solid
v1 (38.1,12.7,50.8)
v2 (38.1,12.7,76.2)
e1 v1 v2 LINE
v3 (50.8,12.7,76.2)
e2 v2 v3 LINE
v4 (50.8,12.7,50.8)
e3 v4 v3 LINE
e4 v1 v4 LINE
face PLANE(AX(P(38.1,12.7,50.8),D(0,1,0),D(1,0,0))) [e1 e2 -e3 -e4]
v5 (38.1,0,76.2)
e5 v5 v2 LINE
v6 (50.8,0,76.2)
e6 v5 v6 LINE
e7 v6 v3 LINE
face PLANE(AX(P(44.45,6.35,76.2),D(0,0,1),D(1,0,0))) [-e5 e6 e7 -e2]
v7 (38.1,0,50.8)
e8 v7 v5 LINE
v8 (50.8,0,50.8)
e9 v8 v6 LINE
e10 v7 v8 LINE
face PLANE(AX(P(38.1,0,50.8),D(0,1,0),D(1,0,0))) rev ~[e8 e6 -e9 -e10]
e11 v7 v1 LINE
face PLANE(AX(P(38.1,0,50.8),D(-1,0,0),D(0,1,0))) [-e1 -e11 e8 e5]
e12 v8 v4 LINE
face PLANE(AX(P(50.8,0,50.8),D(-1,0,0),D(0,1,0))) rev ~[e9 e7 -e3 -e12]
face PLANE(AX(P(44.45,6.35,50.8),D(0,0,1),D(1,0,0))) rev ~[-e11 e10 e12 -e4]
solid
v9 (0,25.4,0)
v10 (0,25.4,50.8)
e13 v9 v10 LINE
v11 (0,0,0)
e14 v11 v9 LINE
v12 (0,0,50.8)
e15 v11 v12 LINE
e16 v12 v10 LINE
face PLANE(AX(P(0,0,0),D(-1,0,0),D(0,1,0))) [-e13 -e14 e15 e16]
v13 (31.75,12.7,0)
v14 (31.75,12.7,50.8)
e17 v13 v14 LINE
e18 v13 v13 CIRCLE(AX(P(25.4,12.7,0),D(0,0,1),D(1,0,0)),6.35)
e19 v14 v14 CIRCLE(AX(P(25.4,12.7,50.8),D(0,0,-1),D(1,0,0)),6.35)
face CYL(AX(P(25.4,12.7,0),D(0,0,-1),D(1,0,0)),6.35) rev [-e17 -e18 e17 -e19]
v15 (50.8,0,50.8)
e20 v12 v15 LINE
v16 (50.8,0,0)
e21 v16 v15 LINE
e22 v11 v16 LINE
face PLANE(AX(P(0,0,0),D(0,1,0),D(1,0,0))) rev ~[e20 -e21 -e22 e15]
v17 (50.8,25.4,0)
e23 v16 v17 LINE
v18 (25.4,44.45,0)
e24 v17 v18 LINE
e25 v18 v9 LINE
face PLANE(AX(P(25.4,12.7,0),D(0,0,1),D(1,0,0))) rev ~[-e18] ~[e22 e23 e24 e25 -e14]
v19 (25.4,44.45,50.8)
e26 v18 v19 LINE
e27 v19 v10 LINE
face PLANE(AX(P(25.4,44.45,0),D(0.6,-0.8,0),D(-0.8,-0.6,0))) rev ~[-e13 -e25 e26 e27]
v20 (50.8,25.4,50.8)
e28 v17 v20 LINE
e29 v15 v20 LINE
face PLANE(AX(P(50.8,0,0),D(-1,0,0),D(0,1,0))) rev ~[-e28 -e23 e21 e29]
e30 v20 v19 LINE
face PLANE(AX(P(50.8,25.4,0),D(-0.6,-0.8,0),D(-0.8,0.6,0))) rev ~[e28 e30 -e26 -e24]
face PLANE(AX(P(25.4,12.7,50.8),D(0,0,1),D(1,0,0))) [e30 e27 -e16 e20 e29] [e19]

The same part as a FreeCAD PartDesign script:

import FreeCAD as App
import Part
import Sketcher
from FreeCAD import Vector
Q = App.Units.Quantity

doc = App.newDocument("Part")
body = doc.addObject("PartDesign::Body", "Body")

# Sketch on XY plane
sketch1 = body.newObject("Sketcher::SketchObject", "Sketch")
sketch1.AttachmentSupport = (doc.getObject("XY_Plane"), [""])
sketch1.MapMode = "FlatFace"
sketch1.addGeometry([
    Part.LineSegment(Vector(0, 25, 0), Vector(0, 0, 0)),  # 0
    Part.LineSegment(Vector(0, 0, 0), Vector(51, 0, 0)),  # 1
    Part.LineSegment(Vector(51, 0, 0), Vector(51, 25, 0)),  # 2
    Part.LineSegment(Vector(51, 25, 0), Vector(25, 44, 0)),  # 3
    Part.LineSegment(Vector(25, 44, 0), Vector(0, 25, 0)),  # 4
], False)
sketch1.addConstraint([
    Sketcher.Constraint("Coincident", 0, 2, 1, 1),
    Sketcher.Constraint("Coincident", 1, 2, 2, 1),
    Sketcher.Constraint("Coincident", 2, 2, 3, 1),
    Sketcher.Constraint("Coincident", 3, 2, 4, 1),
    Sketcher.Constraint("Coincident", 4, 2, 0, 1),
    Sketcher.Constraint("Vertical", 0),
    Sketcher.Constraint("Horizontal", 1),
    Sketcher.Constraint("Vertical", 2),
    Sketcher.Constraint("Coincident", 0, 2, -1, 1),
    Sketcher.Constraint("Horizontal", 2, 2, 4, 2),
    Sketcher.Constraint("Equal", 3, 4),
    Sketcher.Constraint("DistanceX", 1, 1, 1, 2, Q("2 in")),
    Sketcher.Constraint("DistanceY", 0, 2, 0, 1, Q("1 in")),
    Sketcher.Constraint("Distance", 3, Q("1.25 in")),
])
pad1 = body.newObject("PartDesign::Pad", "Pad")
pad1.Profile = sketch1
pad1.Length = Q("2 in")

# Sketch on XY plane
sketch2 = body.newObject("Sketcher::SketchObject", "Sketch001")
sketch2.AttachmentSupport = (doc.getObject("XY_Plane"), [""])
sketch2.MapMode = "FlatFace"
sketch2.addGeometry(Part.Circle(Vector(25, 13, 0), Vector(0, 0, 1), 6), False)
sketch2.addConstraint([
    Sketcher.Constraint("Diameter", 0, Q("0.5 in")),
    Sketcher.Constraint("DistanceX", -1, 1, 0, 3, Q("1 in")),
    Sketcher.Constraint("DistanceY", -1, 1, 0, 3, Q("0.5 in")),
])
pocket1 = body.newObject("PartDesign::Pocket", "Pocket")
pocket1.Profile = sketch2
pocket1.Type = "ThroughAll"
pocket1.Reversed = True
body2 = doc.addObject("PartDesign::Body", "Body001")

# Sketch on XY plane
sketch3 = body2.newObject("Sketcher::SketchObject", "Sketch002")
sketch3.AttachmentSupport = (doc.getObject("XY_Plane001"), [""])
sketch3.MapMode = "FlatFace"
sketch3.AttachmentOffset = App.Placement(Vector(0, 0, 2 * 25.4), App.Rotation())
sketch3.addGeometry([
    Part.LineSegment(Vector(38, 13, 0), Vector(38, 0, 0)),
    Part.LineSegment(Vector(38, 0, 0), Vector(51, 0, 0)),
    Part.LineSegment(Vector(51, 0, 0), Vector(51, 13, 0)),
    Part.LineSegment(Vector(51, 13, 0), Vector(38, 13, 0)),
], False)
sketch3.addConstraint([
    Sketcher.Constraint("Coincident", 0, 2, 1, 1),
    Sketcher.Constraint("Coincident", 1, 2, 2, 1),
    Sketcher.Constraint("Coincident", 2, 2, 3, 1),
    Sketcher.Constraint("Coincident", 3, 2, 0, 1),
    Sketcher.Constraint("Vertical", 0),
    Sketcher.Constraint("Horizontal", 1),
    Sketcher.Constraint("Vertical", 2),
    Sketcher.Constraint("Horizontal", 3),
    Sketcher.Constraint("PointOnObject", 0, 2, -1),
    Sketcher.Constraint("Equal", 3, 0),
    Sketcher.Constraint("DistanceX", 1, 1, 1, 2, Q("0.5 in")),
    Sketcher.Constraint("DistanceX", -1, 1, 1, 2, Q("2 in")),
])
pad2 = body2.newObject("PartDesign::Pad", "Pad001")
pad2.Profile = sketch3
pad2.Length = Q("1 in")

doc.recompute()
